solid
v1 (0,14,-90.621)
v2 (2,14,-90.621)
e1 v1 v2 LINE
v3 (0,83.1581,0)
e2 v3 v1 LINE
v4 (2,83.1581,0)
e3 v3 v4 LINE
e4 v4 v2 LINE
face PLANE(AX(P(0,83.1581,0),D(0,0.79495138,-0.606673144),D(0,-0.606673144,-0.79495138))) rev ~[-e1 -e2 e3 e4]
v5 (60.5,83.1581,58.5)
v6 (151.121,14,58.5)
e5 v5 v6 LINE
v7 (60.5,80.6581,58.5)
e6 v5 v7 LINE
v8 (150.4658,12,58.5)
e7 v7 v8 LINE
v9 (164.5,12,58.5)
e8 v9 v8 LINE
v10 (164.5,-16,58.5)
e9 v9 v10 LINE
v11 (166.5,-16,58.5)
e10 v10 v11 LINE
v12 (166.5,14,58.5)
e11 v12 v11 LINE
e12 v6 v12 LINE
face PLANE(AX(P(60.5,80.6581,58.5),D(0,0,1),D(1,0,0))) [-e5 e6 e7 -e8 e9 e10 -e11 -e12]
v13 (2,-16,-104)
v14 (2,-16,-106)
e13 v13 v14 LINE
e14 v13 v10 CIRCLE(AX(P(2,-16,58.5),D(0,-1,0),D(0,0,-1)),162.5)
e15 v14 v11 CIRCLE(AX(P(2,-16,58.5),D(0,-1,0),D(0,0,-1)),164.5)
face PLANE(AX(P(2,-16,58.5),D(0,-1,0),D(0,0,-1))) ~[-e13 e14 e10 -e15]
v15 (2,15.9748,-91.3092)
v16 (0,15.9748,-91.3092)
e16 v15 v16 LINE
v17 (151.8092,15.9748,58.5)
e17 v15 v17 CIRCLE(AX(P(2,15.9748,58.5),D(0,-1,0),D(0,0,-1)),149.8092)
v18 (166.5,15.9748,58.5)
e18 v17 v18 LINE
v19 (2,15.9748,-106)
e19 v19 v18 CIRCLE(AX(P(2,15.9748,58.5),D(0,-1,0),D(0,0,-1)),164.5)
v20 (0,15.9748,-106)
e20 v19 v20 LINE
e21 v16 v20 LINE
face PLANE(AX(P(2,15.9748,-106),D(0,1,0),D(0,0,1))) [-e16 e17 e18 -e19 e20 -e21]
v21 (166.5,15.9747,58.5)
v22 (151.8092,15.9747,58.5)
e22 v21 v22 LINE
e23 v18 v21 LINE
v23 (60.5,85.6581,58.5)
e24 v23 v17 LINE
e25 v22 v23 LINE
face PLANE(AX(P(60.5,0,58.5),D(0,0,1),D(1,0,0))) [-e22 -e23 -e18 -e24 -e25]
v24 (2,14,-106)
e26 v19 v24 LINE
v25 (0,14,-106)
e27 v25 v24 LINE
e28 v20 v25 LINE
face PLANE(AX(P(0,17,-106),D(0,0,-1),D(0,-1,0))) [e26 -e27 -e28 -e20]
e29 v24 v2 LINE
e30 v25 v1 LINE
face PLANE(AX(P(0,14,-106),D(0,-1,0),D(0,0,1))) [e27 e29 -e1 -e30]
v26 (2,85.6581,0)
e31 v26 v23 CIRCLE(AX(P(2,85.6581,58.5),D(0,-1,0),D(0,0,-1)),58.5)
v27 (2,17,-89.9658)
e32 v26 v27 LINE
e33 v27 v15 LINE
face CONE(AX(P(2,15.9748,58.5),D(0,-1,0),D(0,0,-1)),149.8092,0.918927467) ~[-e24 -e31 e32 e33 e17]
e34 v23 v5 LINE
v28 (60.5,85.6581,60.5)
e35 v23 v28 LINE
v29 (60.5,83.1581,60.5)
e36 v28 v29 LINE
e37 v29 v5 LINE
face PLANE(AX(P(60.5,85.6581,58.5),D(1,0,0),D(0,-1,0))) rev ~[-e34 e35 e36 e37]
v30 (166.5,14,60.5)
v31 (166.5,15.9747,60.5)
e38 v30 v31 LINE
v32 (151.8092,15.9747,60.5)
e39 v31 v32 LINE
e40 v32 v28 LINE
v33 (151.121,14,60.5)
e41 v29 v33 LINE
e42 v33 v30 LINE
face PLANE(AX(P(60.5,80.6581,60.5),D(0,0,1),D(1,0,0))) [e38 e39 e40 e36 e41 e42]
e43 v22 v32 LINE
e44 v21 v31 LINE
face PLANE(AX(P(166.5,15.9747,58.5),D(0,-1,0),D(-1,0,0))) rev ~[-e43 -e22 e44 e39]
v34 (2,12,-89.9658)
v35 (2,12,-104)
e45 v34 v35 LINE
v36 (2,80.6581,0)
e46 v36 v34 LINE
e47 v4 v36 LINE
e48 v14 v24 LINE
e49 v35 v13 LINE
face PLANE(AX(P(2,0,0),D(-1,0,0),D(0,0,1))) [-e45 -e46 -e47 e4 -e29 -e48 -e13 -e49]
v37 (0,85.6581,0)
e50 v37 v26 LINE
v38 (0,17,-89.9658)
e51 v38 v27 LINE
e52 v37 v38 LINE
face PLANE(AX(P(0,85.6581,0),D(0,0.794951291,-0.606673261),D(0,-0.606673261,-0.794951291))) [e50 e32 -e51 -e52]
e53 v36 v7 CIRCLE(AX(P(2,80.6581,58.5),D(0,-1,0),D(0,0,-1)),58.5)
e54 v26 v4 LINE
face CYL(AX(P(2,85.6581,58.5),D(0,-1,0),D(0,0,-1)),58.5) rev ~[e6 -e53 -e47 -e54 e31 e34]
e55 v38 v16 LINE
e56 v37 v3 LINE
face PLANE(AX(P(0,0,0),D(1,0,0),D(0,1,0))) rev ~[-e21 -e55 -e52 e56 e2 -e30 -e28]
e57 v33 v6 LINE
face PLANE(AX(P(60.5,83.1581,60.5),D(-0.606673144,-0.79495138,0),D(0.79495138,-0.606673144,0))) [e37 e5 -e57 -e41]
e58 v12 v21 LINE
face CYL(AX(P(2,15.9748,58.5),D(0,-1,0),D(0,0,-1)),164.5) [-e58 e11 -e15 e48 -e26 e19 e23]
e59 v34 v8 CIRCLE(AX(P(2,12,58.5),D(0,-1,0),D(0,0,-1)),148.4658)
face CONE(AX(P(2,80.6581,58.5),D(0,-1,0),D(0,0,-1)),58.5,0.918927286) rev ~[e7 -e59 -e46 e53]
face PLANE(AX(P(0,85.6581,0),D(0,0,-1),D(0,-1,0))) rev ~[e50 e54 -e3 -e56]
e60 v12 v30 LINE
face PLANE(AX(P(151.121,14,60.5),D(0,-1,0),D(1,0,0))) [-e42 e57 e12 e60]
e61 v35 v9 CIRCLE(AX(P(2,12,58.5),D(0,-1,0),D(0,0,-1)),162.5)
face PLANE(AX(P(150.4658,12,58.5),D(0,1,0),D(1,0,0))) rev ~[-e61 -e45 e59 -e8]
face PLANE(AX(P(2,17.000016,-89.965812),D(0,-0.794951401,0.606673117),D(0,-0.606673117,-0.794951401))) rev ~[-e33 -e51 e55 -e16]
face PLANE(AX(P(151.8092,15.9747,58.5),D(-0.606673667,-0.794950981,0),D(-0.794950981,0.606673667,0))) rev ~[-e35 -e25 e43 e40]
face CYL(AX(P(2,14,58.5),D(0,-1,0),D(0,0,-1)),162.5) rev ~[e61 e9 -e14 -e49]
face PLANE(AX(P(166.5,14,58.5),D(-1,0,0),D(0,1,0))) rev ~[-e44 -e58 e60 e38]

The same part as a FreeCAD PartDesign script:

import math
import FreeCAD as App
import Part
import Sketcher
Q = App.Units.Quantity

doc = App.newDocument("Part")
body = doc.addObject("PartDesign::Body", "Body")

# Sketch on YZ plane
sketch1 = body.newObject("Sketcher::SketchObject", "Sketch")
sketch1.AttachmentSupport = (doc.getObject("YZ_Plane"), [""])
sketch1.MapMode = "FlatFace"
sketch1.addGeometry(Part.LineSegment(App.Vector(85.7, 0, 0), App.Vector(79.4, 0, 0)), False)
sketch1.addGeometry(Part.LineSegment(App.Vector(79.4, 0, 0), App.Vector(12, -88.3, 0)), False)
sketch1.addGeometry(Part.LineSegment(App.Vector(12, -88.3, 0), App.Vector(12, -104, 0)), False)
sketch1.addGeometry(Part.ArcOfCircle(Part.Circle(App.Vector(12, -106, 0), App.Vector(0, 0, 1), 2), math.radians(0), math.radians(90)), False)
sketch1.addGeometry(Part.LineSegment(App.Vector(14, -106, 0), App.Vector(17, -106, 0)), False)
sketch1.addGeometry(Part.LineSegment(App.Vector(17, -106, 0), App.Vector(17, -90, 0)), False)
sketch1.addGeometry(Part.LineSegment(App.Vector(17, -90, 0), App.Vector(85.7, 0, 0)), False)
sketch1.addConstraint(Sketcher.Constraint("Coincident", 0, 2, 1, 1))
sketch1.addConstraint(Sketcher.Constraint("Coincident", 1, 2, 2, 1))
sketch1.addConstraint(Sketcher.Constraint("Coincident", 2, 2, 3, 2))
sketch1.addConstraint(Sketcher.Constraint("Coincident", 3, 1, 4, 1))
sketch1.addConstraint(Sketcher.Constraint("Coincident", 4, 2, 5, 1))
sketch1.addConstraint(Sketcher.Constraint("Coincident", 5, 2, 6, 1))
sketch1.addConstraint(Sketcher.Constraint("Coincident", 6, 2, 0, 1))
sketch1.addConstraint(Sketcher.Constraint("Horizontal", 0))
sketch1.addConstraint(Sketcher.Constraint("Vertical", 2))
sketch1.addConstraint(Sketcher.Constraint("Horizontal", 4))
sketch1.addConstraint(Sketcher.Constraint("Vertical", 5))
sketch1.addConstraint(Sketcher.Constraint("PointOnObject", 0, 2, -1))
sketch1.addConstraint(Sketcher.Constraint("Parallel", 1, 6))
sketch1.addConstraint(Sketcher.Constraint("Vertical", 3, 3, 1, 2))
sketch1.addConstraint(Sketcher.Constraint("Radius", 3, Q("2 mm")))
sketch1.addConstraint(Sketcher.Constraint("DistanceX", -1, 1, 3, 3, Q("12 mm")))
sketch1.addConstraint(Sketcher.Constraint("DistanceY", 2, 2, -1, 1, Q("104 mm")))
sketch1.addConstraint(Sketcher.Constraint("DistanceY", 3, 1, 2, 2, Q("2 mm")))
sketch1.addConstraint(Sketcher.Constraint("DistanceX", 3, 3, 4, 2, Q("5 mm")))
sketch1.addConstraint(Sketcher.Constraint("DistanceY", 1, 2, -1, 1, Q("88.276 mm")))
sketch1.addConstraint(Sketcher.Constraint("DistanceX", -1, 1, 0, 2, Q("79.3684 mm")))
sketch1.addConstraint(Sketcher.Constraint("DistanceY", 5, 2, 1, 2, Q("1.69 mm")))
pad1 = body.newObject("PartDesign::Pad", "Pad")
pad1.Profile = sketch1
pad1.Length = 2

# Sketch on YZ plane
sketch2 = body.newObject("Sketcher::SketchObject", "Sketch001")
sketch2.AttachmentSupport = (doc.getObject("YZ_Plane"), [""])
sketch2.MapMode = "FlatFace"
sketch2.AttachmentOffset = App.Placement(App.Vector(0, 0, 2), App.Rotation())
sketch2.addGeometry(Part.LineSegment(App.Vector(12, -90, 0), App.Vector(80.7, 0, 0)), False)
sketch2.addGeometry(Part.LineSegment(App.Vector(80.7, 0, 0), App.Vector(79.4, 0, 0)), False)
sketch2.addGeometry(Part.LineSegment(App.Vector(79.4, 0, 0), App.Vector(12, -88.3, 0)), False)
sketch2.addGeometry(Part.LineSegment(App.Vector(12, -88.3, 0), App.Vector(12, -90, 0)), False)
sketch2.addGeometry(Part.LineSegment(App.Vector(17, -106, 0), App.Vector(17, -90, 0)), False)
sketch2.addGeometry(Part.LineSegment(App.Vector(17, -90, 0), App.Vector(16, -91.3, 0)), False)
sketch2.addGeometry(Part.LineSegment(App.Vector(16, -91.3, 0), App.Vector(16, -106, 0)), False)
sketch2.addGeometry(Part.LineSegment(App.Vector(16, -106, 0), App.Vector(17, -106, 0)), False)
sketch2.addConstraint(Sketcher.Constraint("Coincident", 0, 2, 1, 1))
sketch2.addConstraint(Sketcher.Constraint("Coincident", 1, 2, 2, 1))
sketch2.addConstraint(Sketcher.Constraint("Coincident", 2, 2, 3, 1))
sketch2.addConstraint(Sketcher.Constraint("Coincident", 3, 2, 0, 1))
sketch2.addConstraint(Sketcher.Constraint("Coincident", 4, 2, 5, 1))
sketch2.addConstraint(Sketcher.Constraint("Coincident", 5, 2, 6, 1))
sketch2.addConstraint(Sketcher.Constraint("Coincident", 6, 2, 7, 1))
sketch2.addConstraint(Sketcher.Constraint("Coincident", 7, 2, 4, 1))
sketch2.addConstraint(Sketcher.Constraint("Horizontal", 1))
sketch2.addConstraint(Sketcher.Constraint("Vertical", 3))
sketch2.addConstraint(Sketcher.Constraint("Vertical", 4))
sketch2.addConstraint(Sketcher.Constraint("Vertical", 6))
sketch2.addConstraint(Sketcher.Constraint("Horizontal", 7))
sketch2.addConstraint(Sketcher.Constraint("PointOnObject", 0, 2, -1))
sketch2.addConstraint(Sketcher.Constraint("Parallel", 0, 2))
sketch2.addConstraint(Sketcher.Constraint("Parallel", 2, 5))
sketch2.addConstraint(Sketcher.Constraint("Horizontal", 3, 2, 4, 2))
sketch2.addConstraint(Sketcher.Constraint("DistanceX", 3, 2, 4, 2, Q("5 mm")))
sketch2.addConstraint(Sketcher.Constraint("DistanceX", -1, 1, 2, 2, Q("12 mm")))
sketch2.addConstraint(Sketcher.Constraint("DistanceY", 6, 2, -1, 1, Q("106 mm")))
sketch2.addConstraint(Sketcher.Constraint("DistanceY", 3, 2, 3, 1, Q("1.69 mm")))
sketch2.addConstraint(Sketcher.Constraint("Angle", 0, Q("52.6507 deg")))
sketch2.addConstraint(Sketcher.Constraint("DistanceX", 3, 2, 5, 2, Q("3.9748 mm")))
sketch2.addConstraint(Sketcher.Constraint("DistanceY", 4, 1, 4, 2, Q("16.0342 mm")))
pocket1 = body.newObject("PartDesign::Pocket", "Pocket")
pocket1.Profile = sketch2
pocket1.Length = 2

# Sketch on YZ plane
sketch3 = body.newObject("Sketcher::SketchObject", "Sketch002")
sketch3.AttachmentSupport = (doc.getObject("YZ_Plane"), [""])
sketch3.MapMode = "FlatFace"
sketch3.AttachmentOffset = App.Placement(App.Vector(0, 0, 2), App.Rotation())
sketch3.addGeometry(Part.LineSegment(App.Vector(16, -106, 0), App.Vector(16, -91.3, 0)), False)
sketch3.addGeometry(Part.LineSegment(App.Vector(16, -91.3, 0), App.Vector(85.7, 0, 0)), False)
sketch3.addGeometry(Part.LineSegment(App.Vector(85.7, 0, 0), App.Vector(80.7, 0, 0)), False)
sketch3.addGeometry(Part.LineSegment(App.Vector(80.7, 0, 0), App.Vector(12, -90, 0)), False)
sketch3.addGeometry(Part.LineSegment(App.Vector(12, -90, 0), App.Vector(12, -104, 0)), False)
sketch3.addGeometry(Part.LineSegment(App.Vector(12, -104, 0), App.Vector(-16, -104, 0)), False)
sketch3.addGeometry(Part.LineSegment(App.Vector(-16, -104, 0), App.Vector(-16, -106, 0)), False)
sketch3.addGeometry(Part.LineSegment(App.Vector(-16, -106, 0), App.Vector(16, -106, 0)), False)
sketch3.addGeometry(Part.LineSegment(App.Vector(85.7, 58.5, 0), App.Vector(-16, 58.5, 0)), True)  # axis
sketch3.addConstraint(Sketcher.Constraint("Coincident", 0, 2, 1, 1))
sketch3.addConstraint(Sketcher.Constraint("Coincident", 1, 2, 2, 1))
sketch3.addConstraint(Sketcher.Constraint("Coincident", 2, 2, 3, 1))
sketch3.addConstraint(Sketcher.Constraint("Coincident", 3, 2, 4, 1))
sketch3.addConstraint(Sketcher.Constraint("Coincident", 4, 2, 5, 1))
sketch3.addConstraint(Sketcher.Constraint("Coincident", 5, 2, 6, 1))
sketch3.addConstraint(Sketcher.Constraint("Coincident", 6, 2, 7, 1))
sketch3.addConstraint(Sketcher.Constraint("Coincident", 7, 2, 0, 1))
sketch3.addConstraint(Sketcher.Constraint("Vertical", 0))
sketch3.addConstraint(Sketcher.Constraint("Horizontal", 2))
sketch3.addConstraint(Sketcher.Constraint("Vertical", 4))
sketch3.addConstraint(Sketcher.Constraint("Horizontal", 5))
sketch3.addConstraint(Sketcher.Constraint("Vertical", 6))
sketch3.addConstraint(Sketcher.Constraint("Horizontal", 7))
sketch3.addConstraint(Sketcher.Constraint("Horizontal", 8))
sketch3.addConstraint(Sketcher.Constraint("PointOnObject", 1, 2, -1))
sketch3.addConstraint(Sketcher.Constraint("Parallel", 1, 3))
sketch3.addConstraint(Sketcher.Constraint("Vertical", 1, 2, 8, 1))
sketch3.addConstraint(Sketcher.Constraint("Vertical", 6, 2, 8, 2))
sketch3.addConstraint(Sketcher.Constraint("DistanceY", -1, 1, 8, 1, Q("58.5 mm")))
sketch3.addConstraint(Sketcher.Constraint("DistanceX", 2, 2, 2, 1, Q("5 mm")))
sketch3.addConstraint(Sketcher.Constraint("DistanceX", 5, 2, 5, 1, Q("28 mm")))
sketch3.addConstraint(Sketcher.Constraint("DistanceY", 6, 2, 6, 1, Q("2 mm")))
sketch3.addConstraint(Sketcher.Constraint("DistanceX", -1, 1, 3, 2, Q("12 mm")))
sketch3.addConstraint(Sketcher.Constraint("DistanceY", 4, 2, -1, 1, Q("104 mm")))
sketch3.addConstraint(Sketcher.Constraint("DistanceY", 3, 2, -1, 1, Q("89.9658 mm")))
sketch3.addConstraint(Sketcher.Constraint("Angle", 1, Q("52.6507 deg")))
sketch3.addConstraint(Sketcher.Constraint("DistanceX", 7, 1, 7, 2, Q("31.9748 mm")))
revolution = body.newObject("PartDesign::Revolution", "Revolution")
revolution.Profile = sketch3
revolution.ReferenceAxis = (sketch3, ["Axis0"])
revolution.Angle = 90

# Sketch on XY plane
sketch4 = body.newObject("Sketcher::SketchObject", "Sketch003")
sketch4.AttachmentSupport = (doc.getObject("XY_Plane"), [""])
sketch4.MapMode = "FlatFace"
sketch4.AttachmentOffset = App.Placement(App.Vector(0, 0, 58.5), App.Rotation())
sketch4.addGeometry(Part.LineSegment(App.Vector(151.8, 16, 0), App.Vector(60.5, 85.7, 0)), False)
sketch4.addGeometry(Part.LineSegment(App.Vector(60.5, 85.7, 0), App.Vector(60.5, 80.7, 0)), False)
sketch4.addGeometry(Part.LineSegment(App.Vector(60.5, 80.7, 0), App.Vector(150.5, 12, 0)), False)
sketch4.addGeometry(Part.LineSegment(App.Vector(150.5, 12, 0), App.Vector(164.5, 12, 0)), False)
sketch4.addGeometry(Part.ArcOfCircle(Part.Circle(App.Vector(166.5, 12, 0), App.Vector(0, 0, 1), 2), math.radians(90), math.radians(180)), False)
sketch4.addGeometry(Part.LineSegment(App.Vector(166.5, 14, 0), App.Vector(166.5, 16, 0)), False)
sketch4.addGeometry(Part.LineSegment(App.Vector(166.5, 16, 0), App.Vector(151.8, 16, 0)), False)
sketch4.addConstraint(Sketcher.Constraint("Coincident", 0, 2, 1, 1))
sketch4.addConstraint(Sketcher.Constraint("Coincident", 1, 2, 2, 1))
sketch4.addConstraint(Sketcher.Constraint("Coincident", 2, 2, 3, 1))
sketch4.addConstraint(Sketcher.Constraint("Coincident", 3, 2, 4, 2))
sketch4.addConstraint(Sketcher.Constraint("Coincident", 4, 1, 5, 1))
sketch4.addConstraint(Sketcher.Constraint("Coincident", 5, 2, 6, 1))
sketch4.addConstraint(Sketcher.Constraint("Coincident", 6, 2, 0, 1))
sketch4.addConstraint(Sketcher.Constraint("Vertical", 1))
sketch4.addConstraint(Sketcher.Constraint("Horizontal", 3))
sketch4.addConstraint(Sketcher.Constraint("Vertical", 5))
sketch4.addConstraint(Sketcher.Constraint("Horizontal", 6))
sketch4.addConstraint(Sketcher.Constraint("Parallel", 0, 2))
sketch4.addConstraint(Sketcher.Constraint("Horizontal", 4, 3, 2, 2))
sketch4.addConstraint(Sketcher.Constraint("Radius", 4, Q("2 mm")))
sketch4.addConstraint(Sketcher.Constraint("DistanceY", 1, 2, 1, 1, Q("5 mm")))
sketch4.addConstraint(Sketcher.Constraint("DistanceY", -1, 1, 4, 3, Q("12 mm")))
sketch4.addConstraint(Sketcher.Constraint("DistanceX", 0, 2, 4, 3, Q("106 mm")))
sketch4.addConstraint(Sketcher.Constraint("DistanceX", 3, 2, 4, 1, Q("2 mm")))
sketch4.addConstraint(Sketcher.Constraint("DistanceX", -1, 1, 4, 3, Q("166.5 mm")))
sketch4.addConstraint(Sketcher.Constraint("Angle", 0, Q("142.6506 deg")))
sketch4.addConstraint(Sketcher.Constraint("DistanceX", 3, 1, 3, 2, Q("14.0342 mm")))
sketch4.addConstraint(Sketcher.Constraint("DistanceX", 6, 2, 6, 1, Q("14.6908 mm")))
pad2 = body.newObject("PartDesign::Pad", "Pad001")
pad2.Profile = sketch4
pad2.Length = 2

# Sketch on XY plane
sketch5 = body.newObject("Sketcher::SketchObject", "Sketch004")
sketch5.AttachmentSupport = (doc.getObject("XY_Plane"), [""])
sketch5.MapMode = "FlatFace"
sketch5.AttachmentOffset = App.Placement(App.Vector(0, 0, 60.5), App.Rotation())
sketch5.addGeometry(Part.LineSegment(App.Vector(151.1, 14, 0), App.Vector(60.5, 83.2, 0)), False)
sketch5.addGeometry(Part.LineSegment(App.Vector(60.5, 83.2, 0), App.Vector(60.5, 80.7, 0)), False)
sketch5.addGeometry(Part.LineSegment(App.Vector(60.5, 80.7, 0), App.Vector(150.5, 12, 0)), False)
sketch5.addGeometry(Part.LineSegment(App.Vector(150.5, 12, 0), App.Vector(166.5, 12, 0)), False)
sketch5.addGeometry(Part.LineSegment(App.Vector(166.5, 12, 0), App.Vector(166.5, 14, 0)), False)
sketch5.addGeometry(Part.LineSegment(App.Vector(166.5, 14, 0), App.Vector(151.1, 14, 0)), False)
sketch5.addConstraint(Sketcher.Constraint("Coincident", 0, 2, 1, 1))
sketch5.addConstraint(Sketcher.Constraint("Coincident", 1, 2, 2, 1))
sketch5.addConstraint(Sketcher.Constraint("Coincident", 2, 2, 3, 1))
sketch5.addConstraint(Sketcher.Constraint("Coincident", 3, 2, 4, 1))
sketch5.addConstraint(Sketcher.Constraint("Coincident", 4, 2, 5, 1))
sketch5.addConstraint(Sketcher.Constraint("Coincident", 5, 2, 0, 1))
sketch5.addConstraint(Sketcher.Constraint("Vertical", 1))
sketch5.addConstraint(Sketcher.Constraint("Horizontal", 3))
sketch5.addConstraint(Sketcher.Constraint("Vertical", 4))
sketch5.addConstraint(Sketcher.Constraint("Horizontal", 5))
sketch5.addConstraint(Sketcher.Constraint("Parallel", 0, 2))
sketch5.addConstraint(Sketcher.Constraint("DistanceY", 4, 1, 4, 2, Q("2 mm")))
sketch5.addConstraint(Sketcher.Constraint("DistanceY", 1, 2, 1, 1, Q("2.5 mm")))
sketch5.addConstraint(Sketcher.Constraint("DistanceY", -1, 1, 2, 2, Q("12 mm")))
sketch5.addConstraint(Sketcher.Constraint("DistanceX", 1, 2, 3, 2, Q("106 mm")))
sketch5.addConstraint(Sketcher.Constraint("DistanceX", -1, 1, 0, 2, Q("60.5 mm")))
sketch5.addConstraint(Sketcher.Constraint("Angle", 0, Q("142.6507 deg")))
sketch5.addConstraint(Sketcher.Constraint("DistanceX", 5, 2, 5, 1, Q("15.379 mm")))
pocket2 = body.newObject("PartDesign::Pocket", "Pocket001")
pocket2.Profile = sketch5
pocket2.Length = 2

# Sketch on YZ plane
sketch6 = body.newObject("Sketcher::SketchObject", "Sketch005")
sketch6.AttachmentSupport = (doc.getObject("YZ_Plane"), [""])
sketch6.MapMode = "FlatFace"
sketch6.addGeometry(Part.LineSegment(App.Vector(80.7, 0, 0), App.Vector(83.2, 0, 0)), False)
sketch6.addGeometry(Part.LineSegment(App.Vector(83.2, 0, 0), App.Vector(14, -90.6, 0)), False)
sketch6.addGeometry(Part.LineSegment(App.Vector(14, -90.6, 0), App.Vector(14, -106, 0)), False)
sketch6.addGeometry(Part.LineSegment(App.Vector(14, -106, 0), App.Vector(12, -106, 0)), False)
sketch6.addGeometry(Part.LineSegment(App.Vector(12, -106, 0), App.Vector(12, -90, 0)), False)
sketch6.addGeometry(Part.LineSegment(App.Vector(12, -90, 0), App.Vector(80.7, 0, 0)), False)
sketch6.addConstraint(Sketcher.Constraint("Coincident", 0, 2, 1, 1))
sketch6.addConstraint(Sketcher.Constraint("Coincident", 1, 2, 2, 1))
sketch6.addConstraint(Sketcher.Constraint("Coincident", 2, 2, 3, 1))
sketch6.addConstraint(Sketcher.Constraint("Coincident", 3, 2, 4, 1))
sketch6.addConstraint(Sketcher.Constraint("Coincident", 4, 2, 5, 1))
sketch6.addConstraint(Sketcher.Constraint("Coincident", 5, 2, 0, 1))
sketch6.addConstraint(Sketcher.Constraint("Horizontal", 0))
sketch6.addConstraint(Sketcher.Constraint("Vertical", 2))
sketch6.addConstraint(Sketcher.Constraint("Horizontal", 3))
sketch6.addConstraint(Sketcher.Constraint("Vertical", 4))
sketch6.addConstraint(Sketcher.Constraint("PointOnObject", 0, 2, -1))
sketch6.addConstraint(Sketcher.Constraint("Parallel", 1, 5))
sketch6.addConstraint(Sketcher.Constraint("DistanceX", 3, 2, 3, 1, Q("2 mm")))
sketch6.addConstraint(Sketcher.Constraint("DistanceX", 0, 1, 0, 2, Q("2.5 mm")))
sketch6.addConstraint(Sketcher.Constraint("DistanceX", -1, 1, 1, 2, Q("14 mm")))
sketch6.addConstraint(Sketcher.Constraint("DistanceY", 2, 2, -1, 1, Q("106 mm")))
sketch6.addConstraint(Sketcher.Constraint("Angle", 1, Q("-127.3493 deg")))
sketch6.addConstraint(Sketcher.Constraint("DistanceY", 2, 2, 2, 1, Q("15.379 mm")))
pocket3 = body.newObject("PartDesign::Pocket", "Pocket002")
pocket3.Profile = sketch6
pocket3.Length = 2
pocket3.Reversed = True

doc.recompute()
